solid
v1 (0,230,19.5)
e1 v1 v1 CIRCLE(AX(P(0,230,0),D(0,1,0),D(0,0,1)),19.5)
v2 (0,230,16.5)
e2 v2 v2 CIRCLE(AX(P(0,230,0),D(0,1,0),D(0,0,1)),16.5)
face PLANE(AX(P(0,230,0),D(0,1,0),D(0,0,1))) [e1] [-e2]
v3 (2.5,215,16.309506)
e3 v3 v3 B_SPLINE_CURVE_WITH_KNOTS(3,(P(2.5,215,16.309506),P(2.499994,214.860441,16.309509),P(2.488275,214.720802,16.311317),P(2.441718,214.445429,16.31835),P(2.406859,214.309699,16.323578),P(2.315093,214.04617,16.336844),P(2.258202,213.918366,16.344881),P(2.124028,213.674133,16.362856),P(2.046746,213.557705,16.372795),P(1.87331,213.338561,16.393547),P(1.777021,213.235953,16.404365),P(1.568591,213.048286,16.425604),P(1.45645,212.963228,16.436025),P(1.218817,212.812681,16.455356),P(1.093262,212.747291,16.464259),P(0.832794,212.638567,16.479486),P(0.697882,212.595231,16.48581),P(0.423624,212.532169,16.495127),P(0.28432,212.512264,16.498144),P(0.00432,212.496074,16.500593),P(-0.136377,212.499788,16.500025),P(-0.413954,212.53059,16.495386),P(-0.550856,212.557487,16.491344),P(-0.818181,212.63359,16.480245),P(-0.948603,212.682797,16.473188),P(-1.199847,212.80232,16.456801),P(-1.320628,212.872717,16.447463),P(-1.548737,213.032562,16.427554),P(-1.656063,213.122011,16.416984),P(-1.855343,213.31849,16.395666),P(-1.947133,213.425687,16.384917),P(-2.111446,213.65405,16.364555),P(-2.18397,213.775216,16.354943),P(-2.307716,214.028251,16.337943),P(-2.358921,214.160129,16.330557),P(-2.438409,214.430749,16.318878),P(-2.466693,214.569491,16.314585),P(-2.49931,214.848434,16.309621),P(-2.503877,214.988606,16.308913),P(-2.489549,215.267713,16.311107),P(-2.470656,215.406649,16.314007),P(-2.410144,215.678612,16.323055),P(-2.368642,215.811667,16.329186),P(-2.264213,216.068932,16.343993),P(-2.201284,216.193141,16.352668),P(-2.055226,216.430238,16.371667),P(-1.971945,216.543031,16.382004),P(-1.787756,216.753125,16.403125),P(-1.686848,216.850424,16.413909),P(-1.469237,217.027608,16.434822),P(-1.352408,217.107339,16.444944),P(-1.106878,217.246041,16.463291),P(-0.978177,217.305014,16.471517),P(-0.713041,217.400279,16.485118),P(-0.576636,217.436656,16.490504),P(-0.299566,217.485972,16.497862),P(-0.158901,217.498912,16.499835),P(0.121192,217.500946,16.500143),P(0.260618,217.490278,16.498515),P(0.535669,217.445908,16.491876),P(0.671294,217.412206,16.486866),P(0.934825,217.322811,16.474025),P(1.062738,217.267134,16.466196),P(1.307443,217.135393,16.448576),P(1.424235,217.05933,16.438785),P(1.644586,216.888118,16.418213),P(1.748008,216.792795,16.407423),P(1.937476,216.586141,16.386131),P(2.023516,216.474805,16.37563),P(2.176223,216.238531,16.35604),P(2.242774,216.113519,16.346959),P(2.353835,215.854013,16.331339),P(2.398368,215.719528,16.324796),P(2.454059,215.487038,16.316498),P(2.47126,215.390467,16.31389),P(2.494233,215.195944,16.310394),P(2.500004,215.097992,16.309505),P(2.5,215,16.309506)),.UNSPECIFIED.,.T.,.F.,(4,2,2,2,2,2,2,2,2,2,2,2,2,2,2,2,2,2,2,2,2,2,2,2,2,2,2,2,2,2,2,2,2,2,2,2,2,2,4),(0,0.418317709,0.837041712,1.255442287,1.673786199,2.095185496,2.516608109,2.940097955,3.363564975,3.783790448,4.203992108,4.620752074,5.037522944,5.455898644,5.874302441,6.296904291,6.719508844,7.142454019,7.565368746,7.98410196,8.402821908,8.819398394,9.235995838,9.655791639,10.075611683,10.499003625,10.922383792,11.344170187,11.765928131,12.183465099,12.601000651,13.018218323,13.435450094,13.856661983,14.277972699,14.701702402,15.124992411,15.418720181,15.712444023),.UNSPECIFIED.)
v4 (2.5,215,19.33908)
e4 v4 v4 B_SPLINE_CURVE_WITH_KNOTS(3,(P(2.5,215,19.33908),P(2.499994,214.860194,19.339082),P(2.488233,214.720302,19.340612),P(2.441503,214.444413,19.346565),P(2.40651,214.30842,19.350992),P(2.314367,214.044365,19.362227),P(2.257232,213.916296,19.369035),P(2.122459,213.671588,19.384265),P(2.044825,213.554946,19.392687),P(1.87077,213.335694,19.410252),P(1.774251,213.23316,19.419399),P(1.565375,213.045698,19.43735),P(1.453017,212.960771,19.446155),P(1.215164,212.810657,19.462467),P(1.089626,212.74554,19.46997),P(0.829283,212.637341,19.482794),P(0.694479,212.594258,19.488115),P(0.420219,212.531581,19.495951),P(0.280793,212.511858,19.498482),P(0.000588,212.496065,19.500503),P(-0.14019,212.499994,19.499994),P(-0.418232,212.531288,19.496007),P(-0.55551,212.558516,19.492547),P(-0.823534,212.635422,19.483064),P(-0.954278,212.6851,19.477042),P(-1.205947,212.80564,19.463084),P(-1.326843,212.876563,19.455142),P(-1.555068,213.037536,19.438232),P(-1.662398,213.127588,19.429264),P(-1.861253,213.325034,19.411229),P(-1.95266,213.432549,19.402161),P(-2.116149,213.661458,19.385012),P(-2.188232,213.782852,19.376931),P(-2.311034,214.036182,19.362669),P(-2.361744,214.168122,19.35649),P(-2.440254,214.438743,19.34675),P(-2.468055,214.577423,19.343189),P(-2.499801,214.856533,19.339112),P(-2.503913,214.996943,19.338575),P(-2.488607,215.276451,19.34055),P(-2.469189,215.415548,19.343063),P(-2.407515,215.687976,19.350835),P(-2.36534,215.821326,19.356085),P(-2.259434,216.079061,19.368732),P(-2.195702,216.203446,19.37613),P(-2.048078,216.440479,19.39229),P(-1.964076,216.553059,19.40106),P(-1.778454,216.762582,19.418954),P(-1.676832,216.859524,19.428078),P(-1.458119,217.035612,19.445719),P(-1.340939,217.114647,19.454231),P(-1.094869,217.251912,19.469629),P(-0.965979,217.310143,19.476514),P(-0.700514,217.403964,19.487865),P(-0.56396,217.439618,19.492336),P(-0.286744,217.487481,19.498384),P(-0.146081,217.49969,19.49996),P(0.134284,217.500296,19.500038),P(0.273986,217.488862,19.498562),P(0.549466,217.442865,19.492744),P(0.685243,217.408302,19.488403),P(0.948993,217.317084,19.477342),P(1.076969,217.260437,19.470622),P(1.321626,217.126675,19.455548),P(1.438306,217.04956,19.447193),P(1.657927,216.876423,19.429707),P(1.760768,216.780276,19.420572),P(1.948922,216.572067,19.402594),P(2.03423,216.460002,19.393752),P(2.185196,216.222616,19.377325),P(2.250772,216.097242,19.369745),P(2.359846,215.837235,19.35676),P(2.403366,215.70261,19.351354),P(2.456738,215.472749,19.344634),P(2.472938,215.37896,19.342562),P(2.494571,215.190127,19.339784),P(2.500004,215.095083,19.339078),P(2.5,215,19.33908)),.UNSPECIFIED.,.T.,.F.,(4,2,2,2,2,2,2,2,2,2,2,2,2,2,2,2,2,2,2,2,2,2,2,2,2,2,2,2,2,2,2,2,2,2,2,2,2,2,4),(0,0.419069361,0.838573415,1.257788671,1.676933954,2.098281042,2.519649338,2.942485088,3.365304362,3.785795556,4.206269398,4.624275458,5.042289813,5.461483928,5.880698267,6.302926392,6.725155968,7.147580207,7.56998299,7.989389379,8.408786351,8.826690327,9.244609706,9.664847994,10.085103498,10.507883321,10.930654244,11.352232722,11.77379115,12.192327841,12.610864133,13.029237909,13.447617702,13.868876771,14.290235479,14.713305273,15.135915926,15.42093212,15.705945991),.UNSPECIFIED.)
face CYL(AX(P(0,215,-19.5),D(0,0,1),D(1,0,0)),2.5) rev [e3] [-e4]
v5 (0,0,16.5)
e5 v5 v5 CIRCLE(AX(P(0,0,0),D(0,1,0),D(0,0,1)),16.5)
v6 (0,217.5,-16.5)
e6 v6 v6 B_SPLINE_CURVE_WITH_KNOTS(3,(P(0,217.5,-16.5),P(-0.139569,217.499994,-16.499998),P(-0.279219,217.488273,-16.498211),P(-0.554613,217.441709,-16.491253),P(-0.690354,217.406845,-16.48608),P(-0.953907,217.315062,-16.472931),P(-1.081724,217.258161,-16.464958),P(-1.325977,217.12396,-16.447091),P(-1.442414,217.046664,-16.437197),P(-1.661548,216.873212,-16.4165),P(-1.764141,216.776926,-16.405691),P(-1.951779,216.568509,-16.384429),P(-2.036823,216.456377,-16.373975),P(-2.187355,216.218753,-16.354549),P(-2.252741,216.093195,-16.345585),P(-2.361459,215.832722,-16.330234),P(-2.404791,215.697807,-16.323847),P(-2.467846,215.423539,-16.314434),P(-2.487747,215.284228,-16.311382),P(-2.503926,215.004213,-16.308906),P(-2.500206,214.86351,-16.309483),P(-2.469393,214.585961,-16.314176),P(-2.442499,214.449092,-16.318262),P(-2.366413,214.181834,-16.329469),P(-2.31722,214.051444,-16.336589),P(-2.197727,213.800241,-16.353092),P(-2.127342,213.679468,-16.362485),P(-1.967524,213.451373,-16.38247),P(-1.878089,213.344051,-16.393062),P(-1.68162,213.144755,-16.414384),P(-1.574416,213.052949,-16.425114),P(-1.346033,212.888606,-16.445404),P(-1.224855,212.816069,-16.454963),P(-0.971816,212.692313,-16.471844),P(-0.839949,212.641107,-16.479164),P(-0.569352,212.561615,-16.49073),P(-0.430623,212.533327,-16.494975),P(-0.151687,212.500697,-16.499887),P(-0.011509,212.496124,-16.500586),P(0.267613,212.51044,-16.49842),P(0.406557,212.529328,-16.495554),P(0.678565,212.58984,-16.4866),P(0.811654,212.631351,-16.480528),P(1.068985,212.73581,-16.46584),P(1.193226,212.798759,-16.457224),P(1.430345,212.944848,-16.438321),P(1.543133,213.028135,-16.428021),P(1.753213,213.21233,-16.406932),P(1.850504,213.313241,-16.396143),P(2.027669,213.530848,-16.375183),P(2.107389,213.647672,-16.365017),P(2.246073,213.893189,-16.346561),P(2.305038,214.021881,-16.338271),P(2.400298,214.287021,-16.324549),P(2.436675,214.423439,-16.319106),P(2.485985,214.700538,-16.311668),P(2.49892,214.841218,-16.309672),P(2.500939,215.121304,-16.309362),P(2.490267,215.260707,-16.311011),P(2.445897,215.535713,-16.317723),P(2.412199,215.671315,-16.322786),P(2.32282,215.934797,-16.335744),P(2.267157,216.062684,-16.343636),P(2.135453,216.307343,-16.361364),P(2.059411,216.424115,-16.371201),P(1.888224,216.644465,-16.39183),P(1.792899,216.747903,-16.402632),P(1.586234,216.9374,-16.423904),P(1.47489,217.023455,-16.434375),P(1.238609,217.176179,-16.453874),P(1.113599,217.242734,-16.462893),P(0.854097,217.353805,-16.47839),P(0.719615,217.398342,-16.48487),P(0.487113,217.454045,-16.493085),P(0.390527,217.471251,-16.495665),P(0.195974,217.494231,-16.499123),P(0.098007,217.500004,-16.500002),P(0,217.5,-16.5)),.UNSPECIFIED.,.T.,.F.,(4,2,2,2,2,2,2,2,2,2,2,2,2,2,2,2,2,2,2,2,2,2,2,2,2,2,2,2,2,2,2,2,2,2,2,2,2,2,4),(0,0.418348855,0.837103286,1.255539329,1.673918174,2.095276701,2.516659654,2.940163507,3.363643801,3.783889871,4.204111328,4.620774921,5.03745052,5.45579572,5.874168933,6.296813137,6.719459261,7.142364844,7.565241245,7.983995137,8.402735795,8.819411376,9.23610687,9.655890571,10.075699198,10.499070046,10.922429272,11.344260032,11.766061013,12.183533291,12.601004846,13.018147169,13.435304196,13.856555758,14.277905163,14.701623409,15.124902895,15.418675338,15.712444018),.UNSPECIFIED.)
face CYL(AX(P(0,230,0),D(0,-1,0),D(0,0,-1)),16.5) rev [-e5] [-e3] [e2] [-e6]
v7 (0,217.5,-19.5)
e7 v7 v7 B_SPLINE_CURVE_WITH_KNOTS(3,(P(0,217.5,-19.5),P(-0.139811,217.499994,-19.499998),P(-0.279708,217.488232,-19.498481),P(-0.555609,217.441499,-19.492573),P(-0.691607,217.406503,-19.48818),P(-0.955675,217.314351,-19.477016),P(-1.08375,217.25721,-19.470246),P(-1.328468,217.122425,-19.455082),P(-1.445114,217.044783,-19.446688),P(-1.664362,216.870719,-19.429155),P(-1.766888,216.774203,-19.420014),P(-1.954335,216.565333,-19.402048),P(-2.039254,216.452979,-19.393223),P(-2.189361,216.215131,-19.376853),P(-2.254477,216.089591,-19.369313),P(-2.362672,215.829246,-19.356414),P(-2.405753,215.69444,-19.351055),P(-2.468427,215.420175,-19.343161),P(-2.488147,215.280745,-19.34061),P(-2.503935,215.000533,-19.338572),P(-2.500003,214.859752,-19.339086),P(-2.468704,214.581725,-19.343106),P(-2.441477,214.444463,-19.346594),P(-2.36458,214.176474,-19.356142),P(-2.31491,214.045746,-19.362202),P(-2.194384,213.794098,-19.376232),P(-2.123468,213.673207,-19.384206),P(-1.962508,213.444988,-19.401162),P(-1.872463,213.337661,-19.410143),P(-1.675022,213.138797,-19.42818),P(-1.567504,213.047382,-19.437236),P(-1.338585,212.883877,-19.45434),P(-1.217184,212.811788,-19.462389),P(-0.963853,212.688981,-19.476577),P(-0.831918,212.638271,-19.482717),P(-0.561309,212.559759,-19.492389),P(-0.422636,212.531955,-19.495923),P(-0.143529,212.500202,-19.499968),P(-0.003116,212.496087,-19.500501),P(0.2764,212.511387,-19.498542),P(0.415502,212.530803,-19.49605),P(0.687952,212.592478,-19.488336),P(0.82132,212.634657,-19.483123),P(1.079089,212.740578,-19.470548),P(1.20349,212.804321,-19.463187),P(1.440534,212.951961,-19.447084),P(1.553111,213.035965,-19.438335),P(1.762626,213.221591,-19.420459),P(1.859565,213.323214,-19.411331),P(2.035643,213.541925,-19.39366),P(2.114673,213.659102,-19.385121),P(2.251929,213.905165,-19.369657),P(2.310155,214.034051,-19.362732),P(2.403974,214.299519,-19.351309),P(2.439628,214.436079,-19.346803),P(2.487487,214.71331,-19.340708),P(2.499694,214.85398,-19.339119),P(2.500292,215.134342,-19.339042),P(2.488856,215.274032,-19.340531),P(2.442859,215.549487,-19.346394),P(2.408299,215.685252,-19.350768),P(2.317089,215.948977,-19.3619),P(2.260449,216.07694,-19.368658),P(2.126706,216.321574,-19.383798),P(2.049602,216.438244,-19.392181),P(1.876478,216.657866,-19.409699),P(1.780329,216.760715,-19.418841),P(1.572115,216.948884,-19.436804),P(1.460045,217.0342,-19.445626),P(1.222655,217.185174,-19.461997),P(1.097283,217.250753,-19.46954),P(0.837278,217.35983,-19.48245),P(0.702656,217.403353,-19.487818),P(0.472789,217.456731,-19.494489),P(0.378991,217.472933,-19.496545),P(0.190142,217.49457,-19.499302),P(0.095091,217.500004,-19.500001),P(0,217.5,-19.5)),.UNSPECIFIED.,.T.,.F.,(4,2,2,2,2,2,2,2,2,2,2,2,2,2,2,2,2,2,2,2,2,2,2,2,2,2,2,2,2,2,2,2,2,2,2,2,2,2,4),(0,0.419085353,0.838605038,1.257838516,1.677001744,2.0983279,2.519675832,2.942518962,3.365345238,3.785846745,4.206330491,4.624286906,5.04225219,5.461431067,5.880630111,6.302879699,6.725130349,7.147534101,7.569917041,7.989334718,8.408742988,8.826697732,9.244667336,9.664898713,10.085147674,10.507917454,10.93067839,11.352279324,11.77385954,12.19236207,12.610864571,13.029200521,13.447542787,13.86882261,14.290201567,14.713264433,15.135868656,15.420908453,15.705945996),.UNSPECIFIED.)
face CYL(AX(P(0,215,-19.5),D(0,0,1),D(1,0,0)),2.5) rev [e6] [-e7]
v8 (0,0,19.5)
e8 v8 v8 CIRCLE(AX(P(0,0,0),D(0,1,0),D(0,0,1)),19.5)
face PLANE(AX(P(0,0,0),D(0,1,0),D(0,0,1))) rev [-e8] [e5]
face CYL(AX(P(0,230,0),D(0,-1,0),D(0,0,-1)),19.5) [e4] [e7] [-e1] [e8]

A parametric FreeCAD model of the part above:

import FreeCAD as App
import Part
import Sketcher

V = App.Vector

doc = App.newDocument("Part")
body = doc.addObject("PartDesign::Body", "Body")

sketch1 = body.newObject("Sketcher::SketchObject", "Sketch")
sketch1.AttachmentSupport = (doc.getObject("XZ_Plane"), [""])
sketch1.MapMode = "FlatFace"
sketch1.addGeometry(Part.Circle(V(0, 0, 0), V(0, 0, 1), 20), False)
sketch1.addGeometry(Part.Circle(V(0, 0, 0), V(0, 0, 1), 16), False)
sketch1.addConstraint(Sketcher.Constraint("Coincident", 0, 3, -1, 1))
sketch1.addConstraint(Sketcher.Constraint("Coincident", 1, 3, -1, 1))
sketch1.addConstraint(Sketcher.Constraint("Diameter", 0, 39.0))
sketch1.addConstraint(Sketcher.Constraint("Diameter", 1, 33.0))
pad1 = body.newObject("PartDesign::Pad", "Pad")
pad1.Profile = sketch1
pad1.Length = 230
pad1.Reversed = True

sketch2 = body.newObject("Sketcher::SketchObject", "Sketch001")
sketch2.AttachmentSupport = (doc.getObject("XY_Plane"), [""])
sketch2.MapMode = "FlatFace"
sketch2.addGeometry(Part.Circle(V(0, 215, 0), V(0, 0, 1), 2.5), False)
sketch2.addConstraint(Sketcher.Constraint("PointOnObject", 0, 3, -2))
sketch2.addConstraint(Sketcher.Constraint("Diameter", 0, 5.0))
sketch2.addConstraint(Sketcher.Constraint("DistanceY", -1, 1, 0, 3, 215.0))
pocket1 = body.newObject("PartDesign::Pocket", "Pocket")
pocket1.Profile = sketch2
pocket1.Type = "ThroughAll"
pocket1.Midplane = True

doc.recompute()
